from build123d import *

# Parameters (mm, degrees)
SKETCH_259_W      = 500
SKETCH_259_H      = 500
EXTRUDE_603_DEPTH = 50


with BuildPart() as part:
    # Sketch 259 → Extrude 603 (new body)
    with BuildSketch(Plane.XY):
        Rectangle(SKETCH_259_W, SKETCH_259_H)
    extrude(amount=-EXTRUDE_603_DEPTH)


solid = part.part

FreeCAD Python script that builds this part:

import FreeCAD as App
import Part
import Sketcher
from FreeCAD import Vector


def add_polygon(sketch, points):
    """Adds a closed chain of lines whose ends are joined by coincident constraints."""
    first, n = sketch.GeometryCount, len(points)
    for a, b in zip(points, points[1:] + points[:1]):
        sketch.addGeometry(Part.LineSegment(App.Vector(*a, 0), App.Vector(*b, 0)), False)
    for i in range(n):
        sketch.addConstraint(Sketcher.Constraint("Coincident", first + i, 2, first + (i + 1) % n, 1))

doc = App.newDocument("Part")
body = doc.addObject("PartDesign::Body", "Body")

# Sketch on XY plane
sketch1 = body.newObject("Sketcher::SketchObject", "Sketch")
sketch1.AttachmentSupport = (doc.getObject("XY_Plane"), [""])
sketch1.MapMode = "FlatFace"
add_polygon(sketch1, [(-250, 250), (-250, -250), (250, -250), (250, 250)])  # lines 0-3
sketch1.addConstraint([
    Sketcher.Constraint("Vertical", 0),
    Sketcher.Constraint("Horizontal", 1),
    Sketcher.Constraint("Vertical", 2),
    Sketcher.Constraint("Horizontal", 3),
    Sketcher.Constraint("Symmetric", 0, 2, 2, 2, -1, 1),
    Sketcher.Constraint("Equal", 3, 0),
    Sketcher.Constraint("DistanceX", 1, 1, 1, 2, 500.0),
])
pad1 = body.newObject("PartDesign::Pad", "Pad")
pad1.Profile = sketch1
pad1.Length = 50
pad1.Reversed = True

doc.recompute()
